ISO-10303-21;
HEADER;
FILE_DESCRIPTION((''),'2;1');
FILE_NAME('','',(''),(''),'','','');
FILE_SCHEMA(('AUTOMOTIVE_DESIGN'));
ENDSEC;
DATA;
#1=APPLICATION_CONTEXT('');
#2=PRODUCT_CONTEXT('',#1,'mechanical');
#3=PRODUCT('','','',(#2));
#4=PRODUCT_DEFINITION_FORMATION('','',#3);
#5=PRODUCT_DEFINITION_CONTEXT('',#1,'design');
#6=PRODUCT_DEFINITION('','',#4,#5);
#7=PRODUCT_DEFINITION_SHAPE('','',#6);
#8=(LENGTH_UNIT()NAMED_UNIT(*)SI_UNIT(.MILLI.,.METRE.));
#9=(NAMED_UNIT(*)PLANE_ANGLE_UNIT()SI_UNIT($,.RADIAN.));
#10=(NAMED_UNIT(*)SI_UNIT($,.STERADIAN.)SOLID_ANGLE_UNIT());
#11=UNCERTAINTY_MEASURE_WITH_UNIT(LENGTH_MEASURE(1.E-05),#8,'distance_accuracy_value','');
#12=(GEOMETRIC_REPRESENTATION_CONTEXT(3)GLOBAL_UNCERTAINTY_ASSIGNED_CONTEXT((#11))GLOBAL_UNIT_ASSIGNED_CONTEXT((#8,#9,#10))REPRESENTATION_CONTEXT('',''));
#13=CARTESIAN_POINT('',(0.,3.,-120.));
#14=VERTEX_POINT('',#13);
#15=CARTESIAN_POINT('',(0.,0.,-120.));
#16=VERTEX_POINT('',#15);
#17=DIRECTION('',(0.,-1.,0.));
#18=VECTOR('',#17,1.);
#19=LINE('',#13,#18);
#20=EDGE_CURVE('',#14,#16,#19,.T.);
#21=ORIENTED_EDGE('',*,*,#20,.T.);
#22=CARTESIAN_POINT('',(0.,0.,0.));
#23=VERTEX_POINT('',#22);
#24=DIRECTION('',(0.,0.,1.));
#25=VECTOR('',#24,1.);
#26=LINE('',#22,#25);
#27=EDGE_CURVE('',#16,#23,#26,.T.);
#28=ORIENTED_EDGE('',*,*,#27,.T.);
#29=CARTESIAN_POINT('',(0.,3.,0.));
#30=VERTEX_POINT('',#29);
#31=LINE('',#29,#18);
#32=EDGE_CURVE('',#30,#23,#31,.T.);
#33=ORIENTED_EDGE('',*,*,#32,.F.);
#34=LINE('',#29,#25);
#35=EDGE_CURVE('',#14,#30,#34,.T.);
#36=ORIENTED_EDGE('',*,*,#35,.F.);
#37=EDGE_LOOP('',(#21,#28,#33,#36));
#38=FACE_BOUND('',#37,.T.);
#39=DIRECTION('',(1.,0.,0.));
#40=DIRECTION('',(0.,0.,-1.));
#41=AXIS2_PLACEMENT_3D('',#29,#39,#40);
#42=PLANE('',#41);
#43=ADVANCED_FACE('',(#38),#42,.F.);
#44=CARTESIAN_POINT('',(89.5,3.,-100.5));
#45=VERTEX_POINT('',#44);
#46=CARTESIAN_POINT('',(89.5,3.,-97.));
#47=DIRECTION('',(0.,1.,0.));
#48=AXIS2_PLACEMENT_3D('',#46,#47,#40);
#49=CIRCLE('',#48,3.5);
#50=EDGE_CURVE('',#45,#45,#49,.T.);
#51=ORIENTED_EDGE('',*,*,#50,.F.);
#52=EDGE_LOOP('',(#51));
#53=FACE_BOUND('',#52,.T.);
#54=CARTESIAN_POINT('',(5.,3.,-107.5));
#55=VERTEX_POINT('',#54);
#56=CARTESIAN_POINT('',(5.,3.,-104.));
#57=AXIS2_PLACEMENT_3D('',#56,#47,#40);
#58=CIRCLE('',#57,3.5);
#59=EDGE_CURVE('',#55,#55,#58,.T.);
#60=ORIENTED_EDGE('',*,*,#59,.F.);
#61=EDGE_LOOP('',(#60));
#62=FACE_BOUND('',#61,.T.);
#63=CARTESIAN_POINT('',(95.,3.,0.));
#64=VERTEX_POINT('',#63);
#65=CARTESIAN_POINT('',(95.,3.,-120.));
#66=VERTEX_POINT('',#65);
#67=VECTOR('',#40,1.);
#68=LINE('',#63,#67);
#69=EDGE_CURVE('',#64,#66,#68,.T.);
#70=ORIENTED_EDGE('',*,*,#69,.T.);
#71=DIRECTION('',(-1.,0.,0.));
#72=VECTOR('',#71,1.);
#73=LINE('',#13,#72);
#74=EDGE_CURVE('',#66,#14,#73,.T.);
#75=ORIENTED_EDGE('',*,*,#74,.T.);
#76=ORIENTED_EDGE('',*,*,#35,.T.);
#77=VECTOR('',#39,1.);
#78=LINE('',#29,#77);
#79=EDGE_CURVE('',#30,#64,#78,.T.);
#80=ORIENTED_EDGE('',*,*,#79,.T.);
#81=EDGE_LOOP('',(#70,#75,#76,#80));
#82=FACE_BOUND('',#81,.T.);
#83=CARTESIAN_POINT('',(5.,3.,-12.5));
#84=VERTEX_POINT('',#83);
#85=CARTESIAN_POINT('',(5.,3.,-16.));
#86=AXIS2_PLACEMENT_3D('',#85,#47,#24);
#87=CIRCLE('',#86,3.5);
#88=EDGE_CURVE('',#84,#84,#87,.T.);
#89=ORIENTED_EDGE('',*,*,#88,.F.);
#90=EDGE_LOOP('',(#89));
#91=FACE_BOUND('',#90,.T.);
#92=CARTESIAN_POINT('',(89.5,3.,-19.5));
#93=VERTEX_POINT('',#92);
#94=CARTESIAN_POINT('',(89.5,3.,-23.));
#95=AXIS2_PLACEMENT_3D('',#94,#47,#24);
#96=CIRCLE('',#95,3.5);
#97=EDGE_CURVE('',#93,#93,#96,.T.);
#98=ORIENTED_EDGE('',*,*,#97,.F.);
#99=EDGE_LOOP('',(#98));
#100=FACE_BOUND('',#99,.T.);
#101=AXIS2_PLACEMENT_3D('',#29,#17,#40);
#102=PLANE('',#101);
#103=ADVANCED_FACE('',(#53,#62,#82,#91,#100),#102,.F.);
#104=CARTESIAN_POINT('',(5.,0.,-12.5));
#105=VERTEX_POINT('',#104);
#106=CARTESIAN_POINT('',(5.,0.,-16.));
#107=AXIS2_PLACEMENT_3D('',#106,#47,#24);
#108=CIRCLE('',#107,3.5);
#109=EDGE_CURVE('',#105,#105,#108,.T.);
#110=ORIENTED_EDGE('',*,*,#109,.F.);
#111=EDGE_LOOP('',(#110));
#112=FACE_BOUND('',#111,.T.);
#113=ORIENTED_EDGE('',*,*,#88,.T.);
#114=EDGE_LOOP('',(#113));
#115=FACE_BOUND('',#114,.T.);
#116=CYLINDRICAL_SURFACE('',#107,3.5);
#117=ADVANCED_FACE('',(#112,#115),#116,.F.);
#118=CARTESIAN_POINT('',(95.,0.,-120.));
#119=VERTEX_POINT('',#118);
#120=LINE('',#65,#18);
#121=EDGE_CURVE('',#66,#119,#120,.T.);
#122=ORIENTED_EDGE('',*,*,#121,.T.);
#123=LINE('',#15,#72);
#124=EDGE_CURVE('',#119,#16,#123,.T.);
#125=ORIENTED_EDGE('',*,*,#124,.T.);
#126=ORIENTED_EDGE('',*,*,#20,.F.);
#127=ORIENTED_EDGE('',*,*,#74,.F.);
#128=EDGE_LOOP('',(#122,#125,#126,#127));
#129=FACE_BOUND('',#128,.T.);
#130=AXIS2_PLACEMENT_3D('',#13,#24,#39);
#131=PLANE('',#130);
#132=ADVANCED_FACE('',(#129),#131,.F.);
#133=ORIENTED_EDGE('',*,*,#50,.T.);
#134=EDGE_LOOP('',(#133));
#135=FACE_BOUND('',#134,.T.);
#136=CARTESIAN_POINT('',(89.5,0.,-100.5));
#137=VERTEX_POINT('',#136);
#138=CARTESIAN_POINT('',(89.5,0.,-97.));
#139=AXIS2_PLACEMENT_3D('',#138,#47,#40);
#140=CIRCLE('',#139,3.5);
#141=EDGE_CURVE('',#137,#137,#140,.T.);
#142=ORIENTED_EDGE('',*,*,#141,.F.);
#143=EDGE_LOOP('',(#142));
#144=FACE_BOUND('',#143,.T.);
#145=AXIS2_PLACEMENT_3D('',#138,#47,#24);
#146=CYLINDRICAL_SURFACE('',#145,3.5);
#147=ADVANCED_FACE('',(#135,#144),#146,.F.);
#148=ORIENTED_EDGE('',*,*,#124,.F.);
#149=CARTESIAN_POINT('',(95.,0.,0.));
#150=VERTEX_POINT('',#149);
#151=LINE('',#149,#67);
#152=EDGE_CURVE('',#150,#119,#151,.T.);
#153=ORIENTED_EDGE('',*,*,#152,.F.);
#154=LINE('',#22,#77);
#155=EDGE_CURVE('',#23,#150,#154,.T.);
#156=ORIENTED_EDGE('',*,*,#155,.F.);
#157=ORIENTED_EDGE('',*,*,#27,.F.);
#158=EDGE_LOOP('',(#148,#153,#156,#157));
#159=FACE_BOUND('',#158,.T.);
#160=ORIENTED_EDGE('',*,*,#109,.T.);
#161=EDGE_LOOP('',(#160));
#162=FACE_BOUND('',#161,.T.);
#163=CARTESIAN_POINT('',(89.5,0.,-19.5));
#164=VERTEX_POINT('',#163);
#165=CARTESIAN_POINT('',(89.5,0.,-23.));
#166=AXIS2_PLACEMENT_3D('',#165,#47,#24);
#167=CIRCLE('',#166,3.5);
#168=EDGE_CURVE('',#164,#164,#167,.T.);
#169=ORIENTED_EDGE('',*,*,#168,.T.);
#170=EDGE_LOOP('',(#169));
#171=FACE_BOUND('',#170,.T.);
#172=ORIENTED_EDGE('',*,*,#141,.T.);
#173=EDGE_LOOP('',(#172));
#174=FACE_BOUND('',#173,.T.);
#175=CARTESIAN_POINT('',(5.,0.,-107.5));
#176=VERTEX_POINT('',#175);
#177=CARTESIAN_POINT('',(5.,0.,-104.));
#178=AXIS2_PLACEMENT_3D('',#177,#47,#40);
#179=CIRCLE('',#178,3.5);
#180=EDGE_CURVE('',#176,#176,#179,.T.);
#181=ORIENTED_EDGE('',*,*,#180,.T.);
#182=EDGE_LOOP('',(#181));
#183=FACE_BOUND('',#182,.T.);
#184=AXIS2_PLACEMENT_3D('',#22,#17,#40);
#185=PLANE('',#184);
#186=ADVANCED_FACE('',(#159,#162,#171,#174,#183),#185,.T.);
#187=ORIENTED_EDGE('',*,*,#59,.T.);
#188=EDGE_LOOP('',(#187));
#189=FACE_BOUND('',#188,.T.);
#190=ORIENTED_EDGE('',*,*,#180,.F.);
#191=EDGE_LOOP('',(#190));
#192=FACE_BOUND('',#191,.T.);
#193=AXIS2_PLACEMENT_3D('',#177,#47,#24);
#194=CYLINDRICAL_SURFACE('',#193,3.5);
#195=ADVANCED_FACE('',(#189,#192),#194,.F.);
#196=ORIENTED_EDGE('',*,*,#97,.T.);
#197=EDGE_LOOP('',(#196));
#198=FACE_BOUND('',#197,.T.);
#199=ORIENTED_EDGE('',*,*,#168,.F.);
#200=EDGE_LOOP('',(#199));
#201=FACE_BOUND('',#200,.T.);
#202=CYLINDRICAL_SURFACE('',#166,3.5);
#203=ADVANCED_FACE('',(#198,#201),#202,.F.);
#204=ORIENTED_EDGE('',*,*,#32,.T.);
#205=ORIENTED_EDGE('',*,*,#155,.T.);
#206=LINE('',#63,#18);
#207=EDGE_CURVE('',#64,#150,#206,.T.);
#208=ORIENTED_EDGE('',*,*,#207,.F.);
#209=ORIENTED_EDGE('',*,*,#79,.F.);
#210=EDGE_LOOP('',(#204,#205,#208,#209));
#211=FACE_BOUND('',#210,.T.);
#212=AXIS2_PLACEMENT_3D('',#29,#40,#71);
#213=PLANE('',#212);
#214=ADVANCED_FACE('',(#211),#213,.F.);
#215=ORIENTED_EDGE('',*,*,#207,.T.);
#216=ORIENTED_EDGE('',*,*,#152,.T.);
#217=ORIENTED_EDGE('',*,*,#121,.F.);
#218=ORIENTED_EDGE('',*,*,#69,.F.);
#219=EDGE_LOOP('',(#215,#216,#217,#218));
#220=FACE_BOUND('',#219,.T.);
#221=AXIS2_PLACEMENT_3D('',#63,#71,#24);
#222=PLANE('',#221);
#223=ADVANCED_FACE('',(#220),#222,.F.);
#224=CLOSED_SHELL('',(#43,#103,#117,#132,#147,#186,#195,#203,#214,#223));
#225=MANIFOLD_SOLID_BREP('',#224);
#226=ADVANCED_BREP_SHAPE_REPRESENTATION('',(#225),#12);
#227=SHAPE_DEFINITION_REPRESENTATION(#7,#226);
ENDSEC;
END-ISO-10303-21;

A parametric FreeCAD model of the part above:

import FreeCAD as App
import Part
import Sketcher
from FreeCAD import Vector
Q = App.Units.Quantity


def add_polygon(sketch, points):
    """Adds a closed chain of lines whose ends are joined by coincident constraints."""
    first, n = sketch.GeometryCount, len(points)
    for a, b in zip(points, points[1:] + points[:1]):
        sketch.addGeometry(Part.LineSegment(App.Vector(*a, 0), App.Vector(*b, 0)), False)
    for i in range(n):
        sketch.addConstraint(Sketcher.Constraint("Coincident", first + i, 2, first + (i + 1) % n, 1))

doc = App.newDocument("Part")
body = doc.addObject("PartDesign::Body", "Body")

# Sketch on XZ plane
sketch1 = body.newObject("Sketcher::SketchObject", "Sketch")
sketch1.AttachmentSupport = (doc.getObject("XZ_Plane"), [""])
sketch1.MapMode = "FlatFace"
add_polygon(sketch1, [(0, -120), (0, 0), (95, 0), (95, -120)])  # lines 0-3
sketch1.addConstraint(Sketcher.Constraint("Vertical", 0))
sketch1.addConstraint(Sketcher.Constraint("Horizontal", 1))
sketch1.addConstraint(Sketcher.Constraint("Vertical", 2))
sketch1.addConstraint(Sketcher.Constraint("Horizontal", 3))
sketch1.addConstraint(Sketcher.Constraint("Coincident", 0, 2, -1, 1))
sketch1.addConstraint(Sketcher.Constraint("DistanceX", 1, 1, 1, 2, Q("95 mm")))
sketch1.addConstraint(Sketcher.Constraint("DistanceY", 0, 1, 0, 2, Q("120 mm")))
pad1 = body.newObject("PartDesign::Pad", "Pad")
pad1.Profile = sketch1
pad1.Length = 3
pad1.Reversed = True

# Sketch on XZ plane
sketch2 = body.newObject("Sketcher::SketchObject", "Sketch001")
sketch2.AttachmentSupport = (doc.getObject("XZ_Plane"), [""])
sketch2.MapMode = "FlatFace"
sketch2.AttachmentOffset = App.Placement(Vector(0, 0, -3), App.Rotation())
sketch2.addGeometry(Part.Circle(Vector(89.5, -23, 0), Vector(0, 0, 1), 3.5), False)
sketch2.addGeometry(Part.Circle(Vector(5, -16, 0), Vector(0, 0, 1), 3.5), False)
sketch2.addGeometry(Part.Circle(Vector(89.5, -97, 0), Vector(0, 0, 1), 3.5), False)
sketch2.addGeometry(Part.Circle(Vector(5, -104, 0), Vector(0, 0, 1), 3.5), False)
sketch2.addConstraint(Sketcher.Constraint("Equal", 0, 1))
sketch2.addConstraint(Sketcher.Constraint("Equal", 1, 2))
sketch2.addConstraint(Sketcher.Constraint("Equal", 2, 3))
sketch2.addConstraint(Sketcher.Constraint("Vertical", 0, 3, 2, 3))
sketch2.addConstraint(Sketcher.Constraint("Vertical", 1, 3, 3, 3))
sketch2.addConstraint(Sketcher.Constraint("Diameter", 0, Q("7 mm")))
sketch2.addConstraint(Sketcher.Constraint("DistanceY", 0, 3, -1, 1, Q("23 mm")))
sketch2.addConstraint(Sketcher.Constraint("DistanceX", -1, 1, 1, 3, Q("5 mm")))
sketch2.addConstraint(Sketcher.Constraint("DistanceY", 1, 3, -1, 1, Q("16 mm")))
sketch2.addConstraint(Sketcher.Constraint("DistanceY", 2, 3, -1, 1, Q("97 mm")))
sketch2.addConstraint(Sketcher.Constraint("DistanceY", 3, 3, -1, 1, Q("104 mm")))
sketch2.addConstraint(Sketcher.Constraint("DistanceX", -1, 1, 0, 3, Q("89.5 mm")))
pocket1 = body.newObject("PartDesign::Pocket", "Pocket")
pocket1.Profile = sketch2
pocket1.Type = "ThroughAll"
pocket1.Reversed = True

doc.recompute()
